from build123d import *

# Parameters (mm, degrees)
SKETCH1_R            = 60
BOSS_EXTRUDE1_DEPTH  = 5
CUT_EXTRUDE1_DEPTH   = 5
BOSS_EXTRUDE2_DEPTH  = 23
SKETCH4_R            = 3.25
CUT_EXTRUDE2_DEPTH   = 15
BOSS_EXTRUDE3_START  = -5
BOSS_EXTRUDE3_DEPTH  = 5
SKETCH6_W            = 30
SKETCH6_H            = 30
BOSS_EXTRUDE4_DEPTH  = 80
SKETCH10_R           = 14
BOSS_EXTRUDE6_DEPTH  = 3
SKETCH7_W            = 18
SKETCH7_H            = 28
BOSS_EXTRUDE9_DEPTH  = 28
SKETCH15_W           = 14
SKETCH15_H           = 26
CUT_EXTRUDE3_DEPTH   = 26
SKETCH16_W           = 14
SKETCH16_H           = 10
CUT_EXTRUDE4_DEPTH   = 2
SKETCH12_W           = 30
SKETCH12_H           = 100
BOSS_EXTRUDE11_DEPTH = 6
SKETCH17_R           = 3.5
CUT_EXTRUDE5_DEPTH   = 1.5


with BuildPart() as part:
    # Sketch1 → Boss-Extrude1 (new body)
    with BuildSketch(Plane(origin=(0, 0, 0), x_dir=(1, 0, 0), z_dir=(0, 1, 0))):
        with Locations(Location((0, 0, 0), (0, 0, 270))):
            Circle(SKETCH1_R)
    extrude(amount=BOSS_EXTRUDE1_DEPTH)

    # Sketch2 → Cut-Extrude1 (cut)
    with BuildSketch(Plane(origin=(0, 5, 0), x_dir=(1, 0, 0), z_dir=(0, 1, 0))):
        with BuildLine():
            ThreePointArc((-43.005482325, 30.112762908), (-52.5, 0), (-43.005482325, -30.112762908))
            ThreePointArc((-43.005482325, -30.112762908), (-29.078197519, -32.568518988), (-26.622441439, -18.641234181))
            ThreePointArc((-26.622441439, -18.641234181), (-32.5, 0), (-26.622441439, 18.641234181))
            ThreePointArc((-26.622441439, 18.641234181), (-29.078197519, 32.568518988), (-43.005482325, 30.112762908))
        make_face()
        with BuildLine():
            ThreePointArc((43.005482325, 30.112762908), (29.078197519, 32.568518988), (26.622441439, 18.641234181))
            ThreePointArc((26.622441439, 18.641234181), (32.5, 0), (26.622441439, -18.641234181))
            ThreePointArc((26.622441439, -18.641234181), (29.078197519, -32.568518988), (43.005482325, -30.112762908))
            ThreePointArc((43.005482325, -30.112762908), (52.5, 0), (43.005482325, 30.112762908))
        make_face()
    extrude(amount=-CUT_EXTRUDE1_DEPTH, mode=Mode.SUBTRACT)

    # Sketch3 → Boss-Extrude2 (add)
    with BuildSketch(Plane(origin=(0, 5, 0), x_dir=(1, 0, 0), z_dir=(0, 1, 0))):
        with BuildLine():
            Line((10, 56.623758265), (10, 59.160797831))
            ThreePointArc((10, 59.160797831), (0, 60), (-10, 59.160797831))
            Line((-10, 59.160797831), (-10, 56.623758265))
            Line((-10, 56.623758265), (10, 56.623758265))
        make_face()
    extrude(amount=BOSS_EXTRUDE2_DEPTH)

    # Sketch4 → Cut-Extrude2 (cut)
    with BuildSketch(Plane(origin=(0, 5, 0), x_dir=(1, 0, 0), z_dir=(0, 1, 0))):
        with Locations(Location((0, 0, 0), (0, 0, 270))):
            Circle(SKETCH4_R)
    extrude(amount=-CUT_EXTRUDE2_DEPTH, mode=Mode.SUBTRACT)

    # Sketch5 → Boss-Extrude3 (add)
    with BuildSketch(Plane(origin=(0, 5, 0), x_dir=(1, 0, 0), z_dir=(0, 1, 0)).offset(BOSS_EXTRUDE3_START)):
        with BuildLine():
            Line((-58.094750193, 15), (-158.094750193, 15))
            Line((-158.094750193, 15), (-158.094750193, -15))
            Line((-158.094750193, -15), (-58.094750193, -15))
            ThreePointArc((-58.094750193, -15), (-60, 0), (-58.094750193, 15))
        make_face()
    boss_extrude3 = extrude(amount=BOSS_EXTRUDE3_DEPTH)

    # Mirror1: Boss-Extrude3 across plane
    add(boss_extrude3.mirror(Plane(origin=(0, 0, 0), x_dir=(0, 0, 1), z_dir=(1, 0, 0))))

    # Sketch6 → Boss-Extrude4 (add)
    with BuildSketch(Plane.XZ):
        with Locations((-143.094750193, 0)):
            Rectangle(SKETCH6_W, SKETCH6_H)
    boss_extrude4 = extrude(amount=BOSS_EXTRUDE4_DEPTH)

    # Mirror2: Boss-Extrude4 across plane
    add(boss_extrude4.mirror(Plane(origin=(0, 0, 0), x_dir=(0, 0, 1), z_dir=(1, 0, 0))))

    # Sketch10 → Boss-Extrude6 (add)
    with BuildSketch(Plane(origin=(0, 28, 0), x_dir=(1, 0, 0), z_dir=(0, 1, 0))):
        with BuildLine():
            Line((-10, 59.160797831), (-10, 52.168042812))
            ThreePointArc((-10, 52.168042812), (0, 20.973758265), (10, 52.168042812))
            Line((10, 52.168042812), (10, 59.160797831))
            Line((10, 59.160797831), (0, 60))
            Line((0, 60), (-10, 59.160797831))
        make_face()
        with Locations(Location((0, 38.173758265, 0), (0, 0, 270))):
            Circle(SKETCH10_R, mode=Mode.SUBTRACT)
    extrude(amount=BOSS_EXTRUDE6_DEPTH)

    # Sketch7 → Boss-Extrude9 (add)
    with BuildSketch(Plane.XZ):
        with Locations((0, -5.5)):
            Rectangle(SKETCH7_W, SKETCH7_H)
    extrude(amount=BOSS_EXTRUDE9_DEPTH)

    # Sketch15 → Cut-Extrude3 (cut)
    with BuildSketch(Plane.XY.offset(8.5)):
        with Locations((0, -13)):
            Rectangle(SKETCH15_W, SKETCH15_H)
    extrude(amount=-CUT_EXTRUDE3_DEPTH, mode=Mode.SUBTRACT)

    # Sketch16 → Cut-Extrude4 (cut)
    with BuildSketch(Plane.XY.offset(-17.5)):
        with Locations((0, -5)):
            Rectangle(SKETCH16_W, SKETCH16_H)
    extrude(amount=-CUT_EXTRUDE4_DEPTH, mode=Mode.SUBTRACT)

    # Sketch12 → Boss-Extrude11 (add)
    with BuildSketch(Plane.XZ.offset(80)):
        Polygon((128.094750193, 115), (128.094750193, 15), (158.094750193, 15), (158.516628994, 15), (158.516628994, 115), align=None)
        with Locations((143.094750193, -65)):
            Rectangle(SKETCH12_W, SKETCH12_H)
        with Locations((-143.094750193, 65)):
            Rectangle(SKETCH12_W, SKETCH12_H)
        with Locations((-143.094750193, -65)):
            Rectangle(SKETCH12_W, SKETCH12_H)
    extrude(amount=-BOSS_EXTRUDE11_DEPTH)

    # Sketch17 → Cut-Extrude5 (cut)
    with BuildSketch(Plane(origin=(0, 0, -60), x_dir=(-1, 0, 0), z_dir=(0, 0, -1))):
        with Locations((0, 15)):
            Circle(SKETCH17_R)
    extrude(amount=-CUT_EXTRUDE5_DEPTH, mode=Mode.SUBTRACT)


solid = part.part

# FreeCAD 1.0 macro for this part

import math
import FreeCAD as App
import Part
import Sketcher

doc = App.newDocument("Part")
body = doc.addObject("PartDesign::Body", "Body")

sketch1 = doc.addObject("Sketcher::SketchObject", "Sketch")
body.addObject(sketch1)
sketch1.AttachmentSupport = (doc.XZ_Plane, [""])
sketch1.MapMode = "FlatFace"
sketch1.addGeometry(Part.Circle(App.Vector(0, 0, 0), App.Vector(0, 0, 1), 60), False)
sketch1.addConstraint([
    Sketcher.Constraint("Coincident", 0, 3, -1, 1),
    Sketcher.Constraint("Diameter", 0, 120.0),
])
pad1 = doc.addObject("PartDesign::Pad", "Pad")
body.addObject(pad1)
pad1.Profile = sketch1
pad1.Length = 5
pad1.Reversed = True

sketch2 = doc.addObject("Sketcher::SketchObject", "Sketch001")
body.addObject(sketch2)
sketch2.AttachmentSupport = (doc.XZ_Plane, [""])
sketch2.MapMode = "FlatFace"
sketch2.AttachmentOffset = App.Placement(App.Vector(0, 0, -5), App.Rotation())
sketch2.addGeometry([
    Part.ArcOfCircle(Part.Circle(App.Vector(0, 0, 0), App.Vector(0, 0, 1), 52), math.radians(145), math.radians(215)),
    Part.ArcOfCircle(Part.Circle(App.Vector(-35, 24, 0), App.Vector(0, 0, 1), 10), math.radians(-35), math.radians(145)),
    Part.ArcOfCircle(Part.Circle(App.Vector(0, 0, 0), App.Vector(0, 0, 1), 32), math.radians(145), math.radians(215)),
    Part.ArcOfCircle(Part.Circle(App.Vector(-35, -24, 0), App.Vector(0, 0, 1), 10), math.radians(-145), math.radians(35)),
    Part.ArcOfCircle(Part.Circle(App.Vector(35, -24, 0), App.Vector(0, 0, 1), 10), math.radians(145), math.radians(325)),
    Part.ArcOfCircle(Part.Circle(App.Vector(0, 0, 0), App.Vector(0, 0, 1), 32), math.radians(-35), math.radians(35)),
    Part.ArcOfCircle(Part.Circle(App.Vector(35, 24, 0), App.Vector(0, 0, 1), 10), math.radians(35), math.radians(215)),
    Part.ArcOfCircle(Part.Circle(App.Vector(0, 0, 0), App.Vector(0, 0, 1), 52), math.radians(-35), math.radians(35)),
], False)
sketch2.addConstraint([
    Sketcher.Constraint("Tangent", 0, 1, 1, 2),
    Sketcher.Constraint("Tangent", 1, 1, 2, 1),
    Sketcher.Constraint("Tangent", 2, 2, 3, 2),
    Sketcher.Constraint("Tangent", 3, 1, 0, 2),
    Sketcher.Constraint("Tangent", 4, 1, 5, 1),
    Sketcher.Constraint("Tangent", 5, 2, 6, 2),
    Sketcher.Constraint("Tangent", 6, 1, 7, 2),
    Sketcher.Constraint("Tangent", 7, 1, 4, 2),
    Sketcher.Constraint("Coincident", 0, 3, -1, 1),
    Sketcher.Constraint("Coincident", 2, 3, -1, 1),
    Sketcher.Constraint("Coincident", 5, 3, -1, 1),
    Sketcher.Constraint("Coincident", 7, 3, -1, 1),
    Sketcher.Constraint("Equal", 3, 4),
    Sketcher.Constraint("Equal", 2, 5),
    Sketcher.Constraint("Horizontal", 3, 3, 4, 3),
    Sketcher.Constraint("Horizontal", 1, 3, 6, 3),
    Sketcher.Constraint("Vertical", 1, 3, 3, 3),
    Sketcher.Constraint("Radius", 1, 10.0),
    Sketcher.Constraint("Radius", 0, 52.5),
    Sketcher.Constraint("DistanceY", -1, 1, 1, 3, 24.376999),
])
pocket1 = doc.addObject("PartDesign::Pocket", "Pocket")
body.addObject(pocket1)
pocket1.Profile = sketch2
pocket1.Length = 5
pocket1.Reversed = True

sketch3 = doc.addObject("Sketcher::SketchObject", "Sketch002")
body.addObject(sketch3)
sketch3.AttachmentSupport = (doc.XZ_Plane, [""])
sketch3.MapMode = "FlatFace"
sketch3.AttachmentOffset = App.Placement(App.Vector(0, 0, -5), App.Rotation())
sketch3.addGeometry([
    Part.LineSegment(App.Vector(10, -56.6, 0), App.Vector(10, -59.2, 0)),
    Part.ArcOfCircle(Part.Circle(App.Vector(0, 0, 0), App.Vector(0, 0, 1), 60), math.radians(-99.59), math.radians(-80.41)),
    Part.LineSegment(App.Vector(-10, -59.2, 0), App.Vector(-10, -56.6, 0)),
    Part.LineSegment(App.Vector(-10, -56.6, 0), App.Vector(10, -56.6, 0)),
], False)
sketch3.addConstraint([
    Sketcher.Constraint("Coincident", 0, 2, 1, 2),
    Sketcher.Constraint("Coincident", 1, 1, 2, 1),
    Sketcher.Constraint("Coincident", 2, 2, 3, 1),
    Sketcher.Constraint("Coincident", 3, 2, 0, 1),
    Sketcher.Constraint("Vertical", 0),
    Sketcher.Constraint("Vertical", 2),
    Sketcher.Constraint("Horizontal", 3),
    Sketcher.Constraint("Coincident", 1, 3, -1, 1),
    Sketcher.Constraint("Horizontal", 0, 2, 1, 1),
    Sketcher.Constraint("Radius", 1, 60.0),
    Sketcher.Constraint("DistanceX", 3, 1, 3, 2, 20.0),
    Sketcher.Constraint("DistanceY", 0, 2, 0, 1, 2.53704),
])
pad2 = doc.addObject("PartDesign::Pad", "Pad001")
body.addObject(pad2)
pad2.Profile = sketch3
pad2.Length = 23
pad2.Reversed = True

sketch4 = doc.addObject("Sketcher::SketchObject", "Sketch003")
body.addObject(sketch4)
sketch4.AttachmentSupport = (doc.XZ_Plane, [""])
sketch4.MapMode = "FlatFace"
sketch4.AttachmentOffset = App.Placement(App.Vector(0, 0, -5), App.Rotation())
sketch4.addGeometry(Part.Circle(App.Vector(0, 0, 0), App.Vector(0, 0, 1), 3.2), False)
sketch4.addConstraint([
    Sketcher.Constraint("Coincident", 0, 3, -1, 1),
    Sketcher.Constraint("Diameter", 0, 6.5),
])
pocket2 = doc.addObject("PartDesign::Pocket", "Pocket001")
body.addObject(pocket2)
pocket2.Profile = sketch4
pocket2.Length = 15
pocket2.Reversed = True

sketch5 = doc.addObject("Sketcher::SketchObject", "Sketch004")
body.addObject(sketch5)
sketch5.AttachmentSupport = (doc.XZ_Plane, [""])
sketch5.MapMode = "FlatFace"
sketch5.addGeometry([
    Part.LineSegment(App.Vector(-58, -15, 0), App.Vector(-158, -15, 0)),
    Part.LineSegment(App.Vector(-158, -15, 0), App.Vector(-158, 15, 0)),
    Part.LineSegment(App.Vector(-158, 15, 0), App.Vector(-58, 15, 0)),
    Part.ArcOfCircle(Part.Circle(App.Vector(0, 0, 0), App.Vector(0, 0, 1), 60), math.radians(166), math.radians(194)),
], False)
sketch5.addConstraint([
    Sketcher.Constraint("Coincident", 0, 2, 1, 1),
    Sketcher.Constraint("Coincident", 1, 2, 2, 1),
    Sketcher.Constraint("Coincident", 2, 2, 3, 1),
    Sketcher.Constraint("Coincident", 3, 2, 0, 1),
    Sketcher.Constraint("Horizontal", 0),
    Sketcher.Constraint("Vertical", 1),
    Sketcher.Constraint("Horizontal", 2),
    Sketcher.Constraint("Coincident", 3, 3, -1, 1),
    Sketcher.Constraint("Vertical", 2, 2, 3, 2),
    Sketcher.Constraint("Radius", 3, 60.0),
    Sketcher.Constraint("DistanceX", 0, 2, 0, 1, 100.0),
    Sketcher.Constraint("DistanceY", 1, 1, 1, 2, 30.0),
])
pad3 = doc.addObject("PartDesign::Pad", "Pad002")
body.addObject(pad3)
pad3.Profile = sketch5
pad3.Length = 5
pad3.Reversed = True
doc.recompute()

mirrored = doc.addObject("PartDesign::Mirrored", "Mirrored")
body.addObject(mirrored)
mirrored.Originals = [pad3]
mirrored.MirrorPlane = (doc.YZ_Plane, [""])
body.Tip = mirrored

sketch6 = doc.addObject("Sketcher::SketchObject", "Sketch005")
body.addObject(sketch6)
sketch6.AttachmentSupport = (doc.XZ_Plane, [""])
sketch6.MapMode = "FlatFace"
sketch6.addGeometry([
    Part.LineSegment(App.Vector(-158, 15, 0), App.Vector(-158, -15, 0)),
    Part.LineSegment(App.Vector(-158, -15, 0), App.Vector(-128, -15, 0)),
    Part.LineSegment(App.Vector(-128, -15, 0), App.Vector(-128, 15, 0)),
    Part.LineSegment(App.Vector(-128, 15, 0), App.Vector(-158, 15, 0)),
], False)
sketch6.addConstraint([
    Sketcher.Constraint("Coincident", 0, 2, 1, 1),
    Sketcher.Constraint("Coincident", 1, 2, 2, 1),
    Sketcher.Constraint("Coincident", 2, 2, 3, 1),
    Sketcher.Constraint("Coincident", 3, 2, 0, 1),
    Sketcher.Constraint("Vertical", 0),
    Sketcher.Constraint("Horizontal", 1),
    Sketcher.Constraint("Vertical", 2),
    Sketcher.Constraint("Horizontal", 3),
    Sketcher.Constraint("Equal", 3, 0),
    Sketcher.Constraint("DistanceX", 1, 1, 1, 2, 30.0),
    Sketcher.Constraint("DistanceY", 0, 2, -1, 1, 15.0),
    Sketcher.Constraint("DistanceX", 0, 2, -1, 1, 158.09475),
])
pad4 = doc.addObject("PartDesign::Pad", "Pad003")
body.addObject(pad4)
pad4.Profile = sketch6
pad4.Length = 80
doc.recompute()

mirrored2 = doc.addObject("PartDesign::Mirrored", "Mirrored001")
body.addObject(mirrored2)
mirrored2.Originals = [pad4]
mirrored2.MirrorPlane = (doc.YZ_Plane, [""])
body.Tip = mirrored2

sketch7 = doc.addObject("Sketcher::SketchObject", "Sketch006")
body.addObject(sketch7)
sketch7.AttachmentSupport = (doc.XZ_Plane, [""])
sketch7.MapMode = "FlatFace"
sketch7.AttachmentOffset = App.Placement(App.Vector(0, 0, -28), App.Rotation())
sketch7.addGeometry([
    Part.LineSegment(App.Vector(-10, -59, 0), App.Vector(-10, -52, 0)),
    Part.ArcOfCircle(Part.Circle(App.Vector(0, -38, 0), App.Vector(0, 0, 1), 17), math.radians(-54), math.radians(234)),
    Part.LineSegment(App.Vector(10, -52, 0), App.Vector(10, -59, 0)),
    Part.LineSegment(App.Vector(10, -59, 0), App.Vector(0, -60, 0)),
    Part.LineSegment(App.Vector(0, -60, 0), App.Vector(-10, -59, 0)),
    Part.Circle(App.Vector(0, -38, 0), App.Vector(0, 0, 1), 14),
], False)
sketch7.addConstraint([
    Sketcher.Constraint("Coincident", 0, 2, 1, 2),
    Sketcher.Constraint("Coincident", 1, 1, 2, 1),
    Sketcher.Constraint("Coincident", 2, 2, 3, 1),
    Sketcher.Constraint("Coincident", 3, 2, 4, 1),
    Sketcher.Constraint("Coincident", 4, 2, 0, 1),
    Sketcher.Constraint("Vertical", 0),
    Sketcher.Constraint("Vertical", 2),
    Sketcher.Constraint("Coincident", 5, 3, 1, 3),
    Sketcher.Constraint("Symmetric", 0, 2, 1, 1, -2),
    Sketcher.Constraint("PointOnObject", 3, 2, -2),
    Sketcher.Constraint("Horizontal", 2, 2, 4, 2),
    Sketcher.Constraint("Diameter", 5, 28.0),
    Sketcher.Constraint("Radius", 1, 17.2),
    Sketcher.Constraint("DistanceX", 0, 2, -1, 1, 10.0),
    Sketcher.Constraint("DistanceY", 3, 2, -1, 1, 60.0),
    Sketcher.Constraint("Distance", 3, 10.035151),
    Sketcher.Constraint("DistanceY", 0, 1, 0, 2, 6.992755),
])
pad5 = doc.addObject("PartDesign::Pad", "Pad004")
body.addObject(pad5)
pad5.Profile = sketch7
pad5.Length = 3
pad5.Reversed = True

sketch8 = doc.addObject("Sketcher::SketchObject", "Sketch007")
body.addObject(sketch8)
sketch8.AttachmentSupport = (doc.XZ_Plane, [""])
sketch8.MapMode = "FlatFace"
sketch8.addGeometry([
    Part.LineSegment(App.Vector(-9, 8, 0), App.Vector(-9, -20, 0)),
    Part.LineSegment(App.Vector(-9, -20, 0), App.Vector(9, -20, 0)),
    Part.LineSegment(App.Vector(9, -20, 0), App.Vector(9, 8, 0)),
    Part.LineSegment(App.Vector(9, 8, 0), App.Vector(-9, 8, 0)),
], False)
sketch8.addConstraint([
    Sketcher.Constraint("Coincident", 0, 2, 1, 1),
    Sketcher.Constraint("Coincident", 1, 2, 2, 1),
    Sketcher.Constraint("Coincident", 2, 2, 3, 1),
    Sketcher.Constraint("Coincident", 3, 2, 0, 1),
    Sketcher.Constraint("Vertical", 0),
    Sketcher.Constraint("Horizontal", 1),
    Sketcher.Constraint("Vertical", 2),
    Sketcher.Constraint("Horizontal", 3),
    Sketcher.Constraint("DistanceX", 1, 1, 1, 2, 18.0),
    Sketcher.Constraint("DistanceY", 0, 2, 0, 1, 28.0),
    Sketcher.Constraint("DistanceX", 0, 2, -1, 1, 9.0),
    Sketcher.Constraint("DistanceY", 0, 2, -1, 1, 19.5),
])
pad6 = doc.addObject("PartDesign::Pad", "Pad005")
body.addObject(pad6)
pad6.Profile = sketch8
pad6.Length = 28

sketch9 = doc.addObject("Sketcher::SketchObject", "Sketch008")
body.addObject(sketch9)
sketch9.AttachmentSupport = (doc.XY_Plane, [""])
sketch9.MapMode = "FlatFace"
sketch9.AttachmentOffset = App.Placement(App.Vector(0, 0, 8.5), App.Rotation())
sketch9.addGeometry([
    Part.LineSegment(App.Vector(-7, 0, 0), App.Vector(-7, -26, 0)),
    Part.LineSegment(App.Vector(-7, -26, 0), App.Vector(7, -26, 0)),
    Part.LineSegment(App.Vector(7, -26, 0), App.Vector(7, 0, 0)),
    Part.LineSegment(App.Vector(7, 0, 0), App.Vector(-7, 0, 0)),
], False)
sketch9.addConstraint([
    Sketcher.Constraint("Coincident", 0, 2, 1, 1),
    Sketcher.Constraint("Coincident", 1, 2, 2, 1),
    Sketcher.Constraint("Coincident", 2, 2, 3, 1),
    Sketcher.Constraint("Coincident", 3, 2, 0, 1),
    Sketcher.Constraint("Vertical", 0),
    Sketcher.Constraint("Horizontal", 1),
    Sketcher.Constraint("Vertical", 2),
    Sketcher.Constraint("Horizontal", 3),
    Sketcher.Constraint("Symmetric", 2, 2, 3, 2, -1, 1),
    Sketcher.Constraint("DistanceX", 1, 1, 1, 2, 14.0),
    Sketcher.Constraint("DistanceY", 0, 2, 0, 1, 26.0),
])
pocket3 = doc.addObject("PartDesign::Pocket", "Pocket002")
body.addObject(pocket3)
pocket3.Profile = sketch9
pocket3.Length = 26

sketch10 = doc.addObject("Sketcher::SketchObject", "Sketch009")
body.addObject(sketch10)
sketch10.AttachmentSupport = (doc.XY_Plane, [""])
sketch10.MapMode = "FlatFace"
sketch10.AttachmentOffset = App.Placement(App.Vector(0, 0, -17.5), App.Rotation())
sketch10.addGeometry([
    Part.LineSegment(App.Vector(-7, 0, 0), App.Vector(-7, -10, 0)),
    Part.LineSegment(App.Vector(-7, -10, 0), App.Vector(7, -10, 0)),
    Part.LineSegment(App.Vector(7, -10, 0), App.Vector(7, 0, 0)),
    Part.LineSegment(App.Vector(7, 0, 0), App.Vector(-7, 0, 0)),
], False)
sketch10.addConstraint([
    Sketcher.Constraint("Coincident", 0, 2, 1, 1),
    Sketcher.Constraint("Coincident", 1, 2, 2, 1),
    Sketcher.Constraint("Coincident", 2, 2, 3, 1),
    Sketcher.Constraint("Coincident", 3, 2, 0, 1),
    Sketcher.Constraint("Vertical", 0),
    Sketcher.Constraint("Horizontal", 1),
    Sketcher.Constraint("Vertical", 2),
    Sketcher.Constraint("Horizontal", 3),
    Sketcher.Constraint("Symmetric", 2, 2, 3, 2, -1, 1),
    Sketcher.Constraint("DistanceX", 1, 1, 1, 2, 14.0),
    Sketcher.Constraint("DistanceY", 0, 2, 0, 1, 10.0),
])
pocket4 = doc.addObject("PartDesign::Pocket", "Pocket003")
body.addObject(pocket4)
pocket4.Profile = sketch10
pocket4.Length = 2

sketch11 = doc.addObject("Sketcher::SketchObject", "Sketch010")
body.addObject(sketch11)
sketch11.AttachmentSupport = (doc.XZ_Plane, [""])
sketch11.MapMode = "FlatFace"
sketch11.AttachmentOffset = App.Placement(App.Vector(0, 0, 80), App.Rotation())
sketch11.addGeometry([
    Part.LineSegment(App.Vector(128, 115, 0), App.Vector(128, 15, 0)),
    Part.LineSegment(App.Vector(128, 15, 0), App.Vector(159, 15, 0)),
    Part.LineSegment(App.Vector(159, 15, 0), App.Vector(159, 115, 0)),
    Part.LineSegment(App.Vector(159, 115, 0), App.Vector(128, 115, 0)),
    Part.LineSegment(App.Vector(128, -15, 0), App.Vector(128, -115, 0)),
    Part.LineSegment(App.Vector(128, -115, 0), App.Vector(158, -115, 0)),
    Part.LineSegment(App.Vector(158, -115, 0), App.Vector(158, -15, 0)),
    Part.LineSegment(App.Vector(158, -15, 0), App.Vector(128, -15, 0)),
    Part.LineSegment(App.Vector(-158, 115, 0), App.Vector(-158, 15, 0)),
    Part.LineSegment(App.Vector(-158, 15, 0), App.Vector(-128, 15, 0)),
    Part.LineSegment(App.Vector(-128, 15, 0), App.Vector(-128, 115, 0)),
    Part.LineSegment(App.Vector(-128, 115, 0), App.Vector(-158, 115, 0)),
    Part.LineSegment(App.Vector(-158, -15, 0), App.Vector(-158, -115, 0)),
    Part.LineSegment(App.Vector(-158, -115, 0), App.Vector(-128, -115, 0)),
    Part.LineSegment(App.Vector(-128, -115, 0), App.Vector(-128, -15, 0)),
    Part.LineSegment(App.Vector(-128, -15, 0), App.Vector(-158, -15, 0)),
], False)
sketch11.addConstraint([
    Sketcher.Constraint("Coincident", 0, 2, 1, 1),
    Sketcher.Constraint("Coincident", 1, 2, 2, 1),
    Sketcher.Constraint("Coincident", 2, 2, 3, 1),
    Sketcher.Constraint("Coincident", 3, 2, 0, 1),
    Sketcher.Constraint("Coincident", 4, 2, 5, 1),
    Sketcher.Constraint("Coincident", 5, 2, 6, 1),
    Sketcher.Constraint("Coincident", 6, 2, 7, 1),
    Sketcher.Constraint("Coincident", 7, 2, 4, 1),
    Sketcher.Constraint("Coincident", 8, 2, 9, 1),
    Sketcher.Constraint("Coincident", 9, 2, 10, 1),
    Sketcher.Constraint("Coincident", 10, 2, 11, 1),
    Sketcher.Constraint("Coincident", 11, 2, 8, 1),
    Sketcher.Constraint("Coincident", 12, 2, 13, 1),
    Sketcher.Constraint("Coincident", 13, 2, 14, 1),
    Sketcher.Constraint("Coincident", 14, 2, 15, 1),
    Sketcher.Constraint("Coincident", 15, 2, 12, 1),
    Sketcher.Constraint("Vertical", 0),
    Sketcher.Constraint("Horizontal", 1),
    Sketcher.Constraint("Vertical", 2),
    Sketcher.Constraint("Horizontal", 3),
    Sketcher.Constraint("Vertical", 4),
    Sketcher.Constraint("Horizontal", 5),
    Sketcher.Constraint("Vertical", 6),
    Sketcher.Constraint("Horizontal", 7),
    Sketcher.Constraint("Vertical", 8),
    Sketcher.Constraint("Horizontal", 9),
    Sketcher.Constraint("Vertical", 10),
    Sketcher.Constraint("Horizontal", 11),
    Sketcher.Constraint("Vertical", 12),
    Sketcher.Constraint("Horizontal", 13),
    Sketcher.Constraint("Vertical", 14),
    Sketcher.Constraint("Horizontal", 15),
    Sketcher.Constraint("Symmetric", 6, 2, 8, 2, -1, 1),
    Sketcher.Constraint("Symmetric", 4, 2, 10, 2, -1, 1),
    Sketcher.Constraint("Symmetric", 3, 2, 13, 2, -1, 1),
    Sketcher.Constraint("Symmetric", 0, 2, 9, 2, -2),
    Sketcher.Constraint("Symmetric", 5, 2, 12, 2, -2),
    Sketcher.Constraint("Horizontal", 7, 2, 14, 2),
    Sketcher.Constraint("DistanceX", 5, 1, 5, 2, 30.0),
    Sketcher.Constraint("DistanceY", 0, 2, 0, 1, 100.0),
    Sketcher.Constraint("DistanceY", -1, 1, 0, 2, 15.0),
    Sketcher.Constraint("DistanceX", 1, 1, 1, 2, 30.421879),
    Sketcher.Constraint("DistanceX", 8, 2, 0, 2, 286.1895),
])
pad7 = doc.addObject("PartDesign::Pad", "Pad006")
body.addObject(pad7)
pad7.Profile = sketch11
pad7.Length = 6
pad7.Reversed = True

sketch12 = doc.addObject("Sketcher::SketchObject", "Sketch011")
body.addObject(sketch12)
sketch12.AttachmentSupport = (doc.XY_Plane, [""])
sketch12.MapMode = "FlatFace"
sketch12.AttachmentOffset = App.Placement(App.Vector(0, 0, -60), App.Rotation())
sketch12.addGeometry(Part.Circle(App.Vector(0, 15, 0), App.Vector(0, 0, 1), 3.5), False)
sketch12.addConstraint([
    Sketcher.Constraint("PointOnObject", 0, 3, -2),
    Sketcher.Constraint("Diameter", 0, 7.0),
    Sketcher.Constraint("DistanceY", -1, 1, 0, 3, 15.0),
])
pocket5 = doc.addObject("PartDesign::Pocket", "Pocket004")
body.addObject(pocket5)
pocket5.Profile = sketch12
pocket5.Length = 1.5
pocket5.Reversed = True

doc.recompute()
